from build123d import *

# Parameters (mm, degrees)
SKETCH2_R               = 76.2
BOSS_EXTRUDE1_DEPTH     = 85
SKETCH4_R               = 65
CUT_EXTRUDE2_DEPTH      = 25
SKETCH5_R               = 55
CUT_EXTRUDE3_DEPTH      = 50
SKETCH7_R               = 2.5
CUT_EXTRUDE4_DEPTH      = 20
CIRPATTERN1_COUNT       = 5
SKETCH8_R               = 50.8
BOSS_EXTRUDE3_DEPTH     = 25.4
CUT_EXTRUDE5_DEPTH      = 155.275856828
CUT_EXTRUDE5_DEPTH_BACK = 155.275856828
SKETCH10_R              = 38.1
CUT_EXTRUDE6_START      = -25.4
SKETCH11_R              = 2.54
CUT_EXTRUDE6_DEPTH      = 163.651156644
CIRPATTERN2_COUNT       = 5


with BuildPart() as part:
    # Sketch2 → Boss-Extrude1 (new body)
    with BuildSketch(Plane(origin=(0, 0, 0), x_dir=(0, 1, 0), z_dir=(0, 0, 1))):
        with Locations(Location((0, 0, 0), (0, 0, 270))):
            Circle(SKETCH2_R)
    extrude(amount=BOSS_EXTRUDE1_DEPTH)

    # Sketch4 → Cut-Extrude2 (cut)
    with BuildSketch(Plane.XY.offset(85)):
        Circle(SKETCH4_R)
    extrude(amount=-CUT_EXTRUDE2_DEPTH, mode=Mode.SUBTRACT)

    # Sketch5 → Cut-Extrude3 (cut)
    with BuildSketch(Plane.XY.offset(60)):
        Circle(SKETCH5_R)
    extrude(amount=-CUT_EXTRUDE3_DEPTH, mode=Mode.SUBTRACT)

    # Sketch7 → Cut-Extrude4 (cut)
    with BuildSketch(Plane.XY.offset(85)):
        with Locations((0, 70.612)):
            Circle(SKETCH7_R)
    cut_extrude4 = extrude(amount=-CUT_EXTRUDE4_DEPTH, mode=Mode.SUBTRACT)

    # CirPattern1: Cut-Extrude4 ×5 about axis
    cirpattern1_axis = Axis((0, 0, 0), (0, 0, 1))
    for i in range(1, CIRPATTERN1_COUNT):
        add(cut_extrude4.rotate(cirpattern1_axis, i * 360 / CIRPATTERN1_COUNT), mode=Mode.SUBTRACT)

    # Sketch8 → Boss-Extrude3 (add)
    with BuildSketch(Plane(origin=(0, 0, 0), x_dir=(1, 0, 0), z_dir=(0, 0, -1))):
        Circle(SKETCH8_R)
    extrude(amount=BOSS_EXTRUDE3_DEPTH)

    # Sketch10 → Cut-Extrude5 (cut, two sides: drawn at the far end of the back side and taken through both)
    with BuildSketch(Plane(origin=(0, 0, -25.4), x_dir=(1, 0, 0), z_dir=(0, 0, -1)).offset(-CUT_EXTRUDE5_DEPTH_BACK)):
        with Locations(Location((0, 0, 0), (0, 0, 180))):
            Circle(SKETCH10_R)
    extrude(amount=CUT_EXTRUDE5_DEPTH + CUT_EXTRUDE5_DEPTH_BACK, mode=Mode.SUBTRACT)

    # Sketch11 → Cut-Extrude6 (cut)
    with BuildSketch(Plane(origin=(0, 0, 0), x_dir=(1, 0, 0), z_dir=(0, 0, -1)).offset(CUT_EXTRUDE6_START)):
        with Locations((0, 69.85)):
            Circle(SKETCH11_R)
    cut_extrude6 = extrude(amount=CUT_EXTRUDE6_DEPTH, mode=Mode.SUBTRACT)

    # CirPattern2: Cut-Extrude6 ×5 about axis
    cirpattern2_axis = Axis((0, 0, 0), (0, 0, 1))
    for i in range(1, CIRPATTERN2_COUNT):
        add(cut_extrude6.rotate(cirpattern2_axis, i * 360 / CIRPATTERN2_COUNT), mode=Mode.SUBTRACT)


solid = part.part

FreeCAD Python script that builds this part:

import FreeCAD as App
import Part
import Sketcher

V = App.Vector

doc = App.newDocument("Part")
params = doc.addObject("Spreadsheet::Sheet", "Params")
for row, (alias, value) in enumerate([
    ("sketch1_diameter", "152.4 mm"),
    ("pad1_length", "85 mm"),
    ("sketch2_diameter", "130 mm"),
    ("pocket1_length", "25 mm"),
    ("sketch3_diameter", "110 mm"),
    ("pocket2_length", "50 mm"),
    ("sketch4_diameter", "5 mm"),
    ("pocket3_length", "20 mm"),
    ("sketch5_diameter", "101.6 mm"),
    ("pad2_length", "25.4 mm"),
    ("sketch6_diameter", "76.2 mm"),
    ("sketch7_diameter", "5.08 mm"),
    ("pocket5_length", "163.651157 mm"),
], start=1):
    params.set(f"A{row}", alias)
    params.set(f"B{row}", "=" + value)
    params.setAlias(f"B{row}", alias)

body = doc.addObject("PartDesign::Body", "Body")

# Sketch on XY plane
sketch1 = body.newObject("Sketcher::SketchObject", "Sketch")
sketch1.AttachmentSupport = (doc.getObject("XY_Plane"), [""])
sketch1.MapMode = "FlatFace"
sketch1.addGeometry(Part.Circle(V(0, 0, 0), V(0, 0, 1), 76), False)
sketch1.addConstraint(Sketcher.Constraint("Coincident", 0, 3, -1, 1))
sketch1.addConstraint(Sketcher.Constraint("Diameter", 0, 152.4))
sketch1.setExpression("Constraints[1]", "Params.sketch1_diameter")
pad1 = body.newObject("PartDesign::Pad", "Pad")
pad1.Profile = sketch1
pad1.setExpression("Length", "Params.pad1_length")

# Sketch on XY plane
sketch2 = body.newObject("Sketcher::SketchObject", "Sketch001")
sketch2.AttachmentSupport = (doc.getObject("XY_Plane"), [""])
sketch2.MapMode = "FlatFace"
sketch2.AttachmentOffset = App.Placement(V(0, 0, 85), App.Rotation())
sketch2.addGeometry(Part.Circle(V(0, 0, 0), V(0, 0, 1), 65), False)
sketch2.addConstraint(Sketcher.Constraint("Coincident", 0, 3, -1, 1))
sketch2.addConstraint(Sketcher.Constraint("Diameter", 0, 130.0))
sketch2.setExpression("Constraints[1]", "Params.sketch2_diameter")
pocket1 = body.newObject("PartDesign::Pocket", "Pocket")
pocket1.Profile = sketch2
pocket1.setExpression("Length", "Params.pocket1_length")

# Sketch on XY plane
sketch3 = body.newObject("Sketcher::SketchObject", "Sketch002")
sketch3.AttachmentSupport = (doc.getObject("XY_Plane"), [""])
sketch3.MapMode = "FlatFace"
sketch3.AttachmentOffset = App.Placement(V(0, 0, 60), App.Rotation())
sketch3.addGeometry(Part.Circle(V(0, 0, 0), V(0, 0, 1), 55), False)
sketch3.addConstraint(Sketcher.Constraint("Coincident", 0, 3, -1, 1))
sketch3.addConstraint(Sketcher.Constraint("Diameter", 0, 110.0))
sketch3.setExpression("Constraints[1]", "Params.sketch3_diameter")
pocket2 = body.newObject("PartDesign::Pocket", "Pocket001")
pocket2.Profile = sketch3
pocket2.setExpression("Length", "Params.pocket2_length")

# Sketch on XY plane
sketch4 = body.newObject("Sketcher::SketchObject", "Sketch003")
sketch4.AttachmentSupport = (doc.getObject("XY_Plane"), [""])
sketch4.MapMode = "FlatFace"
sketch4.AttachmentOffset = App.Placement(V(0, 0, 85), App.Rotation())
sketch4.addGeometry(Part.Circle(V(0, 70.6, 0), V(0, 0, 1), 2.5), False)
sketch4.addConstraint(Sketcher.Constraint("PointOnObject", 0, 3, -2))
sketch4.addConstraint(Sketcher.Constraint("Diameter", 0, 5.0))
sketch4.addConstraint(Sketcher.Constraint("DistanceY", -1, 1, 0, 3, 70.612))
sketch4.setExpression("Constraints[1]", "Params.sketch4_diameter")
pocket3 = body.newObject("PartDesign::Pocket", "Pocket002")
pocket3.Profile = sketch4
pocket3.setExpression("Length", "Params.pocket3_length")
doc.recompute()

polarpattern = body.newObject("PartDesign::PolarPattern", "PolarPattern")
polarpattern.Originals = [pocket3]
polarpattern.Axis = (doc.getObject("Z_Axis"), [""])
polarpattern.Angle = 360
polarpattern.Occurrences = 5
body.Tip = polarpattern

# Sketch on XY plane
sketch5 = body.newObject("Sketcher::SketchObject", "Sketch004")
sketch5.AttachmentSupport = (doc.getObject("XY_Plane"), [""])
sketch5.MapMode = "FlatFace"
sketch5.addGeometry(Part.Circle(V(0, 0, 0), V(0, 0, 1), 51), False)
sketch5.addConstraint(Sketcher.Constraint("Coincident", 0, 3, -1, 1))
sketch5.addConstraint(Sketcher.Constraint("Diameter", 0, 101.6))
sketch5.setExpression("Constraints[1]", "Params.sketch5_diameter")
pad2 = body.newObject("PartDesign::Pad", "Pad001")
pad2.Profile = sketch5
pad2.setExpression("Length", "Params.pad2_length")
pad2.Reversed = True

# Sketch on XY plane
sketch6 = body.newObject("Sketcher::SketchObject", "Sketch005")
sketch6.AttachmentSupport = (doc.getObject("XY_Plane"), [""])
sketch6.MapMode = "FlatFace"
sketch6.AttachmentOffset = App.Placement(V(0, 0, -25.4), App.Rotation())
sketch6.addGeometry(Part.Circle(V(0, 0, 0), V(0, 0, 1), 38), False)
sketch6.addConstraint(Sketcher.Constraint("Coincident", 0, 3, -1, 1))
sketch6.addConstraint(Sketcher.Constraint("Diameter", 0, 76.2))
sketch6.setExpression("Constraints[1]", "Params.sketch6_diameter")
pocket4 = body.newObject("PartDesign::Pocket", "Pocket003")
pocket4.Profile = sketch6
pocket4.Type = "ThroughAll"
pocket4.Midplane = True

# Sketch on XY plane
sketch7 = body.newObject("Sketcher::SketchObject", "Sketch006")
sketch7.AttachmentSupport = (doc.getObject("XY_Plane"), [""])
sketch7.MapMode = "FlatFace"
sketch7.AttachmentOffset = App.Placement(V(0, 0, 25.4), App.Rotation())
sketch7.addGeometry(Part.Circle(V(0, -69.8, 0), V(0, 0, 1), 2.5), False)
sketch7.addConstraint(Sketcher.Constraint("PointOnObject", 0, 3, -2))
sketch7.addConstraint(Sketcher.Constraint("Diameter", 0, 5.08))
sketch7.addConstraint(Sketcher.Constraint("DistanceY", 0, 3, -1, 1, 69.85))
sketch7.setExpression("Constraints[1]", "Params.sketch7_diameter")
pocket5 = body.newObject("PartDesign::Pocket", "Pocket004")
pocket5.Profile = sketch7
pocket5.setExpression("Length", "Params.pocket5_length")
doc.recompute()

polarpattern2 = body.newObject("PartDesign::PolarPattern", "PolarPattern001")
polarpattern2.Originals = [pocket5]
polarpattern2.Axis = (doc.getObject("Z_Axis"), [""])
polarpattern2.Angle = 360
polarpattern2.Occurrences = 5
body.Tip = polarpattern2

doc.recompute()
